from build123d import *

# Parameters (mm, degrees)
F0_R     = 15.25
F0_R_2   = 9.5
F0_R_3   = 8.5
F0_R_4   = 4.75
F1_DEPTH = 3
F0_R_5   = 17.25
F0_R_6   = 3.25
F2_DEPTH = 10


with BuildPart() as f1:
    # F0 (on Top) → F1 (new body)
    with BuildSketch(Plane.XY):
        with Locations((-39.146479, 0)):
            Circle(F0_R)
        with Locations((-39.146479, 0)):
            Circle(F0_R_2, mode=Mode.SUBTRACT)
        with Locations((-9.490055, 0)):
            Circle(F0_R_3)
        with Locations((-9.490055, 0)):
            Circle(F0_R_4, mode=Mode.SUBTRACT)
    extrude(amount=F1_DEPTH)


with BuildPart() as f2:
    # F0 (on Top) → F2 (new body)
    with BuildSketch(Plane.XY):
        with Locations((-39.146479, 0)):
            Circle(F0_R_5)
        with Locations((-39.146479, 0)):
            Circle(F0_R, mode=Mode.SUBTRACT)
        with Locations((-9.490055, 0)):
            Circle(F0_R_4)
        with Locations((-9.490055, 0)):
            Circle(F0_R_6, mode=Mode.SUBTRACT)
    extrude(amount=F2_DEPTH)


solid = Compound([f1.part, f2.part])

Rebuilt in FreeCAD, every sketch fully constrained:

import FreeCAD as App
import Part
import Sketcher
from FreeCAD import Vector

doc = App.newDocument("Part")
params = doc.addObject("Spreadsheet::Sheet", "Params")
for row, (alias, value) in enumerate([
    ("sketch1_diameter", "19 mm"),
    ("sketch1_diameter2", "17 mm"),
    ("sketch1_diameter3", "30.5 mm"),
    ("sketch1_diameter4", "9.5 mm"),
    ("pad1_length", "3 mm"),
    ("sketch2_diameter", "34.5 mm"),
    ("sketch2_diameter2", "30.5 mm"),
    ("sketch2_diameter3", "9.5 mm"),
    ("sketch2_diameter4", "6.5 mm"),
    ("pad2_length", "10 mm"),
], start=1):
    params.set(f"A{row}", alias)
    params.set(f"B{row}", "=" + value)
    params.setAlias(f"B{row}", alias)

body = doc.addObject("PartDesign::Body", "Body")
body.AllowCompound = True

sketch1 = doc.addObject("Sketcher::SketchObject", "Sketch")
body.addObject(sketch1)
sketch1.AttachmentSupport = (doc.XY_Plane, [""])
sketch1.MapMode = "FlatFace"
sketch1.addGeometry([
    Part.Circle(Vector(-39.1, 0, 0), Vector(0, 0, 1), 15.2),
    Part.Circle(Vector(-39.1, 0, 0), Vector(0, 0, 1), 9.5),
    Part.Circle(Vector(-9.5, 0, 0), Vector(0, 0, 1), 8.5),
    Part.Circle(Vector(-9.5, 0, 0), Vector(0, 0, 1), 4.8),
], False)
sketch1.addConstraint([
    Sketcher.Constraint("Coincident", 1, 3, 0, 3),
    Sketcher.Constraint("Coincident", 3, 3, 2, 3),
    Sketcher.Constraint("PointOnObject", 0, 3, -1),
    Sketcher.Constraint("PointOnObject", 2, 3, -1),
    Sketcher.Constraint("Diameter", 1, 19.0),
    Sketcher.Constraint("Diameter", 2, 17.0),
    Sketcher.Constraint("Diameter", 0, 30.5),
    Sketcher.Constraint("Diameter", 3, 9.5),
    Sketcher.Constraint("DistanceX", 0, 3, -1, 1, 39.146479),
    Sketcher.Constraint("DistanceX", 2, 3, -1, 1, 9.490055),
])
sketch1.setExpression("Constraints[4]", "Params.sketch1_diameter")
sketch1.setExpression("Constraints[5]", "Params.sketch1_diameter2")
sketch1.setExpression("Constraints[6]", "Params.sketch1_diameter3")
sketch1.setExpression("Constraints[7]", "Params.sketch1_diameter4")
pad1 = doc.addObject("PartDesign::Pad", "Pad")
body.addObject(pad1)
pad1.Profile = sketch1
pad1.setExpression("Length", "Params.pad1_length")
body2 = doc.addObject("PartDesign::Body", "Body001")
body2.AllowCompound = True

sketch2 = doc.addObject("Sketcher::SketchObject", "Sketch001")
body2.addObject(sketch2)
sketch2.AttachmentSupport = (doc.getObject("XY_Plane001"), [""])
sketch2.MapMode = "FlatFace"
sketch2.addGeometry([
    Part.Circle(Vector(-39.1, 0, 0), Vector(0, 0, 1), 17.2),
    Part.Circle(Vector(-39.1, 0, 0), Vector(0, 0, 1), 15.2),
    Part.Circle(Vector(-9.5, 0, 0), Vector(0, 0, 1), 4.8),
    Part.Circle(Vector(-9.5, 0, 0), Vector(0, 0, 1), 3.2),
], False)
sketch2.addConstraint([
    Sketcher.Constraint("Coincident", 1, 3, 0, 3),
    Sketcher.Constraint("Coincident", 3, 3, 2, 3),
    Sketcher.Constraint("PointOnObject", 0, 3, -1),
    Sketcher.Constraint("PointOnObject", 2, 3, -1),
    Sketcher.Constraint("Diameter", 0, 34.5),
    Sketcher.Constraint("Diameter", 1, 30.5),
    Sketcher.Constraint("Diameter", 2, 9.5),
    Sketcher.Constraint("Diameter", 3, 6.5),
    Sketcher.Constraint("DistanceX", 0, 3, -1, 1, 39.146479),
    Sketcher.Constraint("DistanceX", 2, 3, -1, 1, 9.490055),
])
sketch2.setExpression("Constraints[4]", "Params.sketch2_diameter")
sketch2.setExpression("Constraints[5]", "Params.sketch2_diameter2")
sketch2.setExpression("Constraints[6]", "Params.sketch2_diameter3")
sketch2.setExpression("Constraints[7]", "Params.sketch2_diameter4")
pad2 = doc.addObject("PartDesign::Pad", "Pad001")
body2.addObject(pad2)
pad2.Profile = sketch2
pad2.setExpression("Length", "Params.pad2_length")

doc.recompute()
